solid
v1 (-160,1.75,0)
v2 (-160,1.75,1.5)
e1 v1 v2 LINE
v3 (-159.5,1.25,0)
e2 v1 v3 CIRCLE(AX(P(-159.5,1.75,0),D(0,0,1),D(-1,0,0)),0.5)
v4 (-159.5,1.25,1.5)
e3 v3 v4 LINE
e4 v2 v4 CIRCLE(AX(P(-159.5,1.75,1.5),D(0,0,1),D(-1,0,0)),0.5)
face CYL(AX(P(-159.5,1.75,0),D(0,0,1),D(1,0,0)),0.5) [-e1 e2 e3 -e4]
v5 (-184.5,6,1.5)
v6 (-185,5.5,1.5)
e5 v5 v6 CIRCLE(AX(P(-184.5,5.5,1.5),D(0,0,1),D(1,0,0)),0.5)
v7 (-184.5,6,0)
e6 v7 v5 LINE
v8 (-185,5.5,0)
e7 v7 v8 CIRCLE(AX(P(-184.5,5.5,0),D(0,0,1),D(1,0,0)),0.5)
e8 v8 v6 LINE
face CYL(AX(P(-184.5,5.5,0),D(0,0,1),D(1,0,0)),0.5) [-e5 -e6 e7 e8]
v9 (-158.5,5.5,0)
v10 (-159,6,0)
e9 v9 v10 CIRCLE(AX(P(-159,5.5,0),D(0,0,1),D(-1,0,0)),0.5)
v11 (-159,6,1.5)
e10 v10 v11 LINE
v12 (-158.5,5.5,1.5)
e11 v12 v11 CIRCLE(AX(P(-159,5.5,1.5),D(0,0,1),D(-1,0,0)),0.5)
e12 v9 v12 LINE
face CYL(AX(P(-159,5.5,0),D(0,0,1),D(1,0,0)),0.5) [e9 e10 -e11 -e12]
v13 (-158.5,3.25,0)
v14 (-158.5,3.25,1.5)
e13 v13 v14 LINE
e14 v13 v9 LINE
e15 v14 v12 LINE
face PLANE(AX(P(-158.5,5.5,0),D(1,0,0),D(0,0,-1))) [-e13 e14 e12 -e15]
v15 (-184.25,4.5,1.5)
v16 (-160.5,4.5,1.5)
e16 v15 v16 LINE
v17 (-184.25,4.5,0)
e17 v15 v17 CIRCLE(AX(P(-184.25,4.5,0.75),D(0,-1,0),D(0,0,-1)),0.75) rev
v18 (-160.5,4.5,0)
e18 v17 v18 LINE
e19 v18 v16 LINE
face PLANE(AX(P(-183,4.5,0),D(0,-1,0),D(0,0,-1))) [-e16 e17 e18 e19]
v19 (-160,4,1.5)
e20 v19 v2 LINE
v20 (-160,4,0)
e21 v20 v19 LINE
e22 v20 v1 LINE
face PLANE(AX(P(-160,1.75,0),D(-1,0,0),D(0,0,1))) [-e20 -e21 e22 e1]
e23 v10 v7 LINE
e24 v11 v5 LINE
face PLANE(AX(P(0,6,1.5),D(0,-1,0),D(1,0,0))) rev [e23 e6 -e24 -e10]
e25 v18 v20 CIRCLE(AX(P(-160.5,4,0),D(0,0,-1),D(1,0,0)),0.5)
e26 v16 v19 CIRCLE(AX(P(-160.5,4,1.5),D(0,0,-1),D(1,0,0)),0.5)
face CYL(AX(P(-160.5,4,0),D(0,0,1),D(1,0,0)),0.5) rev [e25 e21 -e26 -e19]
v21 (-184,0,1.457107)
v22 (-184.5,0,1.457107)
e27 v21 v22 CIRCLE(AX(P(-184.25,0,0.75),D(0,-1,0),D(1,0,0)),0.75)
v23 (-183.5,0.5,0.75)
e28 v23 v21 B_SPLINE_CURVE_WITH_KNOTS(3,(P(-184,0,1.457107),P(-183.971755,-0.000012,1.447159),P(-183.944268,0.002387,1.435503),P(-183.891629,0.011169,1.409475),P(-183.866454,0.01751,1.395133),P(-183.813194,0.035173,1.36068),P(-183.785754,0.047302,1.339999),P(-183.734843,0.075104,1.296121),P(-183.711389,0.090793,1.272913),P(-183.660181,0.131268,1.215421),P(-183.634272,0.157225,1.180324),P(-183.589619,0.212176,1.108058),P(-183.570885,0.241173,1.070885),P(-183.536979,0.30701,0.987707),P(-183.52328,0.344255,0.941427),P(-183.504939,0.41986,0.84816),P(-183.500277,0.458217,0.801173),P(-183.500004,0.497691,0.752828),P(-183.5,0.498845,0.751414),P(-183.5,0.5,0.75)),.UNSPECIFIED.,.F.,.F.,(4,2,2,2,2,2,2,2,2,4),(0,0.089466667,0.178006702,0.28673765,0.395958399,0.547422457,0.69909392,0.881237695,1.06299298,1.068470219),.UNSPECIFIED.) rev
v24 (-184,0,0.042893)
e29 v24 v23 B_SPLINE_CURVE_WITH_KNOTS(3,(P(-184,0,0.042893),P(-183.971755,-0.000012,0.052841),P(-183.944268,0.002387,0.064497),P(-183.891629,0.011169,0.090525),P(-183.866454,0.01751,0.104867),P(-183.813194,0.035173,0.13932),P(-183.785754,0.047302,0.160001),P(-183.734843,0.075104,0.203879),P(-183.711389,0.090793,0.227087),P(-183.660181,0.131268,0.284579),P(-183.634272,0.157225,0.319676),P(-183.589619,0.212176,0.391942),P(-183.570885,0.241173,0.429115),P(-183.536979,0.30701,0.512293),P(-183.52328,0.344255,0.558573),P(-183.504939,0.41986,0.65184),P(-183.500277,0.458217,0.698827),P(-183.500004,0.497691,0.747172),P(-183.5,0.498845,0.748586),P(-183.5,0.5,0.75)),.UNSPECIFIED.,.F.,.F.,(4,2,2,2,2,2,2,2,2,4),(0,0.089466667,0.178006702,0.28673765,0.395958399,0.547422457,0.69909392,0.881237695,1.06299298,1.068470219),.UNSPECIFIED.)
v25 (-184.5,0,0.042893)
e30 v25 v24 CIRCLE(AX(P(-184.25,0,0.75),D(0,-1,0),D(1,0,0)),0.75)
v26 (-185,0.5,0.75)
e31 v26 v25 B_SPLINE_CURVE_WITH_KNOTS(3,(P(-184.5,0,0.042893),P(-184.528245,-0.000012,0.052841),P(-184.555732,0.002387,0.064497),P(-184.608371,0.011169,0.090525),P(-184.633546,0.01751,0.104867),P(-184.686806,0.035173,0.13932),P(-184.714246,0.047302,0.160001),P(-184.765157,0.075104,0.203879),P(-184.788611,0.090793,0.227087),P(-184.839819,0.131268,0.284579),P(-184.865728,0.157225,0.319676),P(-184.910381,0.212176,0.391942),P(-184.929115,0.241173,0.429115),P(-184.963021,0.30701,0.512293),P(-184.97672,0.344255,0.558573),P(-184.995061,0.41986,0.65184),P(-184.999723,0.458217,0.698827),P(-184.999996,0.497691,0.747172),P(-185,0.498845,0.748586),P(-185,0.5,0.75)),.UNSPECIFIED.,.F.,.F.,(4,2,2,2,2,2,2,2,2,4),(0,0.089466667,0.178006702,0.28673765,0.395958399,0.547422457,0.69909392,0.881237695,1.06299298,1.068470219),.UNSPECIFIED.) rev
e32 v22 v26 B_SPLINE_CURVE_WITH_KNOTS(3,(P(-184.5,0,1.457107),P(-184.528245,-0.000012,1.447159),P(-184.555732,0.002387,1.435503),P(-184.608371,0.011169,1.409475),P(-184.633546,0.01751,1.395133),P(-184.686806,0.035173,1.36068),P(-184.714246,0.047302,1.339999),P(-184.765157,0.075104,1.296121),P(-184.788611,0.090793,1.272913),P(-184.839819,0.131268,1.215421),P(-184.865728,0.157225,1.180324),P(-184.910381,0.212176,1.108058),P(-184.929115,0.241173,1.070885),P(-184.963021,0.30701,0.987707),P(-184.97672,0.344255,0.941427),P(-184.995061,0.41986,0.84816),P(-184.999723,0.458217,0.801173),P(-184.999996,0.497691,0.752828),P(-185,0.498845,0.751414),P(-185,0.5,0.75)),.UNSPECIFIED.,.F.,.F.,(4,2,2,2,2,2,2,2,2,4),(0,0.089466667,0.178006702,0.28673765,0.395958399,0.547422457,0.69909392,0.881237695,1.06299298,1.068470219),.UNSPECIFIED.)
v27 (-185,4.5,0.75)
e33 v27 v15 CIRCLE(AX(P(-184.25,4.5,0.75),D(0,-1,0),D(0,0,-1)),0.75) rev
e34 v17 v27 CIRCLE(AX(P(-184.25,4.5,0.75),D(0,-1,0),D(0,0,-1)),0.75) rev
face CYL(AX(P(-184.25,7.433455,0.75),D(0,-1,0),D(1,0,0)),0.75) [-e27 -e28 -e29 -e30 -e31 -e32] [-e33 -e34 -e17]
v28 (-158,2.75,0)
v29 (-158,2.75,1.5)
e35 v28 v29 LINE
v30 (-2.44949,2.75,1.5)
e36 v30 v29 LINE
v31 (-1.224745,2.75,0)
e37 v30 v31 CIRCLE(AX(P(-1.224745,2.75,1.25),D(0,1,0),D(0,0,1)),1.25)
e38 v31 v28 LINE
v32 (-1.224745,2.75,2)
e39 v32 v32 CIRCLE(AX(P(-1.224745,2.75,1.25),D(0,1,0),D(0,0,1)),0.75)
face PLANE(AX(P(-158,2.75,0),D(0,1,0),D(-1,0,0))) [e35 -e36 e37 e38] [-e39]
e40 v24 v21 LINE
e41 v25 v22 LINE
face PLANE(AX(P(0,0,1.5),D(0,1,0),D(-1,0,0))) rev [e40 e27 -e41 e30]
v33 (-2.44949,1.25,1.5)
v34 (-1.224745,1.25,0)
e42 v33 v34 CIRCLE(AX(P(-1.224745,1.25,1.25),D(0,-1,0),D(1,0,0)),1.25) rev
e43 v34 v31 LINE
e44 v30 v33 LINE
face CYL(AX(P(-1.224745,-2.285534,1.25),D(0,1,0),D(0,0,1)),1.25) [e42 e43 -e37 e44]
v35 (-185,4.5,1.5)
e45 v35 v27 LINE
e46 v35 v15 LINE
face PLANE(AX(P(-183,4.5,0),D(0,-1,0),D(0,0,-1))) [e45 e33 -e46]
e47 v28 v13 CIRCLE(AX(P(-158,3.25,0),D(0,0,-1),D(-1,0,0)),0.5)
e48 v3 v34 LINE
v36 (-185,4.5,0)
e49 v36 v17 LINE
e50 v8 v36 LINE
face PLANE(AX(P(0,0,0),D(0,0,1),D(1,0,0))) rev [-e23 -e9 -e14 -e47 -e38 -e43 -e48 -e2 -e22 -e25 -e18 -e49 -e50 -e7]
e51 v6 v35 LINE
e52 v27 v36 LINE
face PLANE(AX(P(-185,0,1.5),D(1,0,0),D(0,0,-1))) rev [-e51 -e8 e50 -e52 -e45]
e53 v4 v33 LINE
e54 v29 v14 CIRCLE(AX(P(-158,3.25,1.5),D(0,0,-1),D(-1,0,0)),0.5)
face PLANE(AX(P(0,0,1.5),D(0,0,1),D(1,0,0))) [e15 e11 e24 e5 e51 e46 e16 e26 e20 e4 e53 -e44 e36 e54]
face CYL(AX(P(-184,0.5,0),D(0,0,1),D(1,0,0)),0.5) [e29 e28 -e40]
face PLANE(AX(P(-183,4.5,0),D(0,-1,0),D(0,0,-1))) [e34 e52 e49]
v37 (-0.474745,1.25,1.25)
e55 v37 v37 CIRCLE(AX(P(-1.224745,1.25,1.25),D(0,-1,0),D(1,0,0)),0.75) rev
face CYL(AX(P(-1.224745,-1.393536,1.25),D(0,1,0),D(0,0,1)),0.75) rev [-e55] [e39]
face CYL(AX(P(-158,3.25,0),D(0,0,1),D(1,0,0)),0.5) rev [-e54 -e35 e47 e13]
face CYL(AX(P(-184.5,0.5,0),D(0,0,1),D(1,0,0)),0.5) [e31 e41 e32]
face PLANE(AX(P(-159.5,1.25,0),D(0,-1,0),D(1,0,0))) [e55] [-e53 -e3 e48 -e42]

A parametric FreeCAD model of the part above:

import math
import FreeCAD as App
import Part
import Sketcher

V = App.Vector

doc = App.newDocument("Part")
params = doc.addObject("Spreadsheet::Sheet", "Params")
for row, (alias, value) in enumerate([
    ("sketch1_width", "185 mm"),
    ("sketch1_height", "6 mm"),
    ("pad1_length", "1.5 mm"),
    ("sketch2_radius", "0.5 mm"),
    ("sketch2_width", "158 mm"),
    ("sketch2_height", "5 mm"),
    ("sketch2_width2", "0.5 mm"),
    ("sketch2_width3", "25.5 mm"),
    ("pocket1_length", "1.5 mm"),
    ("sketch3_diameter", "1.5 mm"),
    ("pocket2_length", "4.5 mm"),
    ("sketch4_diameter", "2.5 mm"),
    ("pad2_length", "1.5 mm"),
    ("sketch5_diameter", "1.5 mm"),
    ("sketch5_radius", "1.25 mm"),
    ("pocket3_length", "1.5 mm"),
], start=1):
    params.set(f"A{row}", alias)
    params.set(f"B{row}", "=" + value)
    params.setAlias(f"B{row}", alias)

body = doc.addObject("PartDesign::Body", "Body")

sketch1 = body.newObject("Sketcher::SketchObject", "Sketch")
sketch1.AttachmentSupport = (doc.getObject("XY_Plane"), [""])
sketch1.MapMode = "FlatFace"
sketch1.addGeometry(Part.LineSegment(V(-185, 6, 0), V(-185, 0, 0)), False)
sketch1.addGeometry(Part.LineSegment(V(-185, 0, 0), V(0, 0, 0)), False)
sketch1.addGeometry(Part.LineSegment(V(0, 0, 0), V(0, 6, 0)), False)
sketch1.addGeometry(Part.LineSegment(V(0, 6, 0), V(-185, 6, 0)), False)
sketch1.addConstraint(Sketcher.Constraint("Coincident", 0, 2, 1, 1))
sketch1.addConstraint(Sketcher.Constraint("Coincident", 1, 2, 2, 1))
sketch1.addConstraint(Sketcher.Constraint("Coincident", 2, 2, 3, 1))
sketch1.addConstraint(Sketcher.Constraint("Coincident", 3, 2, 0, 1))
sketch1.addConstraint(Sketcher.Constraint("Vertical", 0))
sketch1.addConstraint(Sketcher.Constraint("Horizontal", 1))
sketch1.addConstraint(Sketcher.Constraint("Vertical", 2))
sketch1.addConstraint(Sketcher.Constraint("Horizontal", 3))
sketch1.addConstraint(Sketcher.Constraint("Coincident", 1, 2, -1, 1))
sketch1.addConstraint(Sketcher.Constraint("DistanceX", 1, 1, 1, 2, 185.0))
sketch1.addConstraint(Sketcher.Constraint("DistanceY", 0, 2, 0, 1, 6.0))
sketch1.setExpression("Constraints[9]", "Params.sketch1_width")
sketch1.setExpression("Constraints[10]", "Params.sketch1_height")
pad1 = body.newObject("PartDesign::Pad", "Pad")
pad1.Profile = sketch1
pad1.setExpression("Length", "Params.pad1_length")

sketch2 = body.newObject("Sketcher::SketchObject", "Sketch001")
sketch2.AttachmentSupport = (doc.getObject("XY_Plane"), [""])
sketch2.MapMode = "FlatFace"
sketch2.AttachmentOffset = App.Placement(V(0, 0, 1.5), App.Rotation())
sketch2.addGeometry(Part.LineSegment(V(-204.51, 25.51, 0), V(-204.51, -19.51, 0)), False)
sketch2.addGeometry(Part.LineSegment(V(-204.51, -19.51, 0), V(19.51, -19.51, 0)), False)
sketch2.addGeometry(Part.LineSegment(V(19.51, -19.51, 0), V(19.51, 25.51, 0)), False)
sketch2.addGeometry(Part.LineSegment(V(19.51, 25.51, 0), V(-204.51, 25.51, 0)), False)
sketch2.addGeometry(Part.LineSegment(V(-184, 0, 0), V(-184.5, 0, 0)), False)
sketch2.addGeometry(Part.ArcOfCircle(Part.Circle(V(-184.5, 0.5, 0), V(0, 0, 1), 0.5), math.radians(180), math.radians(270)), False)
sketch2.addGeometry(Part.LineSegment(V(-185, 0.5, 0), V(-185, 5.5, 0)), False)
sketch2.addGeometry(Part.ArcOfCircle(Part.Circle(V(-184.5, 5.5, 0), V(0, 0, 1), 0.5), math.radians(90), math.radians(180)), False)
sketch2.addGeometry(Part.LineSegment(V(-184.5, 6, 0), V(-159, 6, 0)), False)
sketch2.addGeometry(Part.ArcOfCircle(Part.Circle(V(-159, 5.5, 0), V(0, 0, 1), 0.5), math.radians(0), math.radians(90)), False)
sketch2.addGeometry(Part.LineSegment(V(-158.5, 5.5, 0), V(-158.5, 3.25, 0)), False)
sketch2.addGeometry(Part.ArcOfCircle(Part.Circle(V(-158, 3.25, 0), V(0, 0, 1), 0.5), math.radians(180), math.radians(270)), False)
sketch2.addGeometry(Part.LineSegment(V(-158, 2.75, 0), V(0, 2.75, 0)), False)
sketch2.addGeometry(Part.LineSegment(V(0, 2.75, 0), V(0, 1.25, 0)), False)
sketch2.addGeometry(Part.LineSegment(V(0, 1.25, 0), V(-159.5, 1.25, 0)), False)
sketch2.addGeometry(Part.ArcOfCircle(Part.Circle(V(-159.5, 1.75, 0), V(0, 0, 1), 0.5), math.radians(180), math.radians(270)), False)
sketch2.addGeometry(Part.LineSegment(V(-160, 1.75, 0), V(-160, 4, 0)), False)
sketch2.addGeometry(Part.ArcOfCircle(Part.Circle(V(-160.5, 4, 0), V(0, 0, 1), 0.5), math.radians(0), math.radians(90)), False)
sketch2.addGeometry(Part.LineSegment(V(-160.5, 4.5, 0), V(-183, 4.5, 0)), False)
sketch2.addGeometry(Part.ArcOfCircle(Part.Circle(V(-183, 4, 0), V(0, 0, 1), 0.5), math.radians(90), math.radians(180)), False)
sketch2.addGeometry(Part.LineSegment(V(-183.5, 4, 0), V(-183.5, 0.5, 0)), False)
sketch2.addGeometry(Part.ArcOfCircle(Part.Circle(V(-184, 0.5, 0), V(0, 0, 1), 0.5), math.radians(-90), math.radians(0)), False)
sketch2.addConstraint(Sketcher.Constraint("Coincident", 0, 2, 1, 1))
sketch2.addConstraint(Sketcher.Constraint("Coincident", 1, 2, 2, 1))
sketch2.addConstraint(Sketcher.Constraint("Coincident", 2, 2, 3, 1))
sketch2.addConstraint(Sketcher.Constraint("Coincident", 3, 2, 0, 1))
sketch2.addConstraint(Sketcher.Constraint("Tangent", 4, 2, 5, 2))
sketch2.addConstraint(Sketcher.Constraint("Tangent", 5, 1, 6, 1))
sketch2.addConstraint(Sketcher.Constraint("Tangent", 6, 2, 7, 2))
sketch2.addConstraint(Sketcher.Constraint("Tangent", 7, 1, 8, 1))
sketch2.addConstraint(Sketcher.Constraint("Tangent", 8, 2, 9, 2))
sketch2.addConstraint(Sketcher.Constraint("Tangent", 9, 1, 10, 1))
sketch2.addConstraint(Sketcher.Constraint("Tangent", 10, 2, 11, 1))
sketch2.addConstraint(Sketcher.Constraint("Tangent", 11, 2, 12, 1))
sketch2.addConstraint(Sketcher.Constraint("Coincident", 12, 2, 13, 1))
sketch2.addConstraint(Sketcher.Constraint("Coincident", 13, 2, 14, 1))
sketch2.addConstraint(Sketcher.Constraint("Tangent", 14, 2, 15, 2))
sketch2.addConstraint(Sketcher.Constraint("Tangent", 15, 1, 16, 1))
sketch2.addConstraint(Sketcher.Constraint("Tangent", 16, 2, 17, 1))
sketch2.addConstraint(Sketcher.Constraint("Tangent", 17, 2, 18, 1))
sketch2.addConstraint(Sketcher.Constraint("Tangent", 18, 2, 19, 1))
sketch2.addConstraint(Sketcher.Constraint("Tangent", 19, 2, 20, 1))
sketch2.addConstraint(Sketcher.Constraint("Tangent", 20, 2, 21, 2))
sketch2.addConstraint(Sketcher.Constraint("Tangent", 21, 1, 4, 1))
sketch2.addConstraint(Sketcher.Constraint("Vertical", 0))
sketch2.addConstraint(Sketcher.Constraint("Horizontal", 1))
sketch2.addConstraint(Sketcher.Constraint("Vertical", 2))
sketch2.addConstraint(Sketcher.Constraint("Horizontal", 3))
sketch2.addConstraint(Sketcher.Constraint("Horizontal", 4))
sketch2.addConstraint(Sketcher.Constraint("Vertical", 6))
sketch2.addConstraint(Sketcher.Constraint("Horizontal", 8))
sketch2.addConstraint(Sketcher.Constraint("Vertical", 10))
sketch2.addConstraint(Sketcher.Constraint("Horizontal", 12))
sketch2.addConstraint(Sketcher.Constraint("Vertical", 13))
sketch2.addConstraint(Sketcher.Constraint("Horizontal", 14))
sketch2.addConstraint(Sketcher.Constraint("Vertical", 16))
sketch2.addConstraint(Sketcher.Constraint("Horizontal", 18))
sketch2.addConstraint(Sketcher.Constraint("Vertical", 20))
sketch2.addConstraint(Sketcher.Constraint("Equal", 5, 7))
sketch2.addConstraint(Sketcher.Constraint("Equal", 7, 9))
sketch2.addConstraint(Sketcher.Constraint("Equal", 9, 11))
sketch2.addConstraint(Sketcher.Constraint("Equal", 11, 15))
sketch2.addConstraint(Sketcher.Constraint("Equal", 15, 17))
sketch2.addConstraint(Sketcher.Constraint("Equal", 17, 19))
sketch2.addConstraint(Sketcher.Constraint("Equal", 19, 21))
sketch2.addConstraint(Sketcher.Constraint("PointOnObject", 4, 2, -1))
sketch2.addConstraint(Sketcher.Constraint("PointOnObject", 12, 2, -2))
sketch2.addConstraint(Sketcher.Constraint("Equal", 10, 16))
sketch2.addConstraint(Sketcher.Constraint("Radius", 5, 0.5))
sketch2.addConstraint(Sketcher.Constraint("DistanceX", 12, 1, 12, 2, 158.0))
sketch2.addConstraint(Sketcher.Constraint("DistanceY", 6, 1, 6, 2, 5.0))
sketch2.addConstraint(Sketcher.Constraint("DistanceX", 4, 2, 4, 1, 0.5))
sketch2.addConstraint(Sketcher.Constraint("DistanceX", 8, 1, 8, 2, 25.5))
sketch2.addConstraint(Sketcher.Constraint("DistanceX", 14, 2, 14, 1, 159.5))
sketch2.addConstraint(Sketcher.Constraint("DistanceY", 13, 2, 13, 1, 1.5))
sketch2.addConstraint(Sketcher.Constraint("DistanceX", 1, 1, 1, 2, 224.02))
sketch2.addConstraint(Sketcher.Constraint("DistanceY", 0, 2, 0, 1, 45.02))
sketch2.addConstraint(Sketcher.Constraint("DistanceY", 10, 2, 10, 1, 2.25))
sketch2.addConstraint(Sketcher.Constraint("DistanceX", 0, 2, -1, 1, 204.51))
sketch2.addConstraint(Sketcher.Constraint("DistanceY", 0, 2, -1, 1, 19.51))
sketch2.setExpression("Constraints[46]", "Params.sketch2_radius")
sketch2.setExpression("Constraints[47]", "Params.sketch2_width")
sketch2.setExpression("Constraints[48]", "Params.sketch2_height")
sketch2.setExpression("Constraints[49]", "Params.sketch2_width2")
sketch2.setExpression("Constraints[50]", "Params.sketch2_width3")
pocket1 = body.newObject("PartDesign::Pocket", "Pocket")
pocket1.Profile = sketch2
pocket1.setExpression("Length", "Params.pocket1_length")

sketch3 = body.newObject("Sketcher::SketchObject", "Sketch002")
sketch3.AttachmentSupport = (doc.getObject("XZ_Plane"), [""])
sketch3.MapMode = "FlatFace"
sketch3.addGeometry(Part.LineSegment(V(-185.166835, 1.608054, 0), V(-185.166835, -0.219674, 0)), False)
sketch3.addGeometry(Part.LineSegment(V(-185.166835, -0.219674, 0), V(-182.87237, -0.219674, 0)), False)
sketch3.addGeometry(Part.LineSegment(V(-182.87237, -0.219674, 0), V(-182.87237, 1.608054, 0)), False)
sketch3.addGeometry(Part.LineSegment(V(-182.87237, 1.608054, 0), V(-185.166835, 1.608054, 0)), False)
sketch3.addGeometry(Part.Circle(V(-184.25, 0.75, 0), V(0, 0, 1), 0.75), False)
sketch3.addConstraint(Sketcher.Constraint("Coincident", 0, 2, 1, 1))
sketch3.addConstraint(Sketcher.Constraint("Coincident", 1, 2, 2, 1))
sketch3.addConstraint(Sketcher.Constraint("Coincident", 2, 2, 3, 1))
sketch3.addConstraint(Sketcher.Constraint("Coincident", 3, 2, 0, 1))
sketch3.addConstraint(Sketcher.Constraint("Vertical", 0))
sketch3.addConstraint(Sketcher.Constraint("Horizontal", 1))
sketch3.addConstraint(Sketcher.Constraint("Vertical", 2))
sketch3.addConstraint(Sketcher.Constraint("Horizontal", 3))
sketch3.addConstraint(Sketcher.Constraint("Diameter", 4, 1.5))
sketch3.addConstraint(Sketcher.Constraint("DistanceX", 4, 3, -1, 1, 184.25))
sketch3.addConstraint(Sketcher.Constraint("DistanceY", -1, 1, 4, 3, 0.75))
sketch3.addConstraint(Sketcher.Constraint("DistanceX", 1, 1, 1, 2, 2.294465))
sketch3.addConstraint(Sketcher.Constraint("DistanceY", 0, 2, 0, 1, 1.827728))
sketch3.addConstraint(Sketcher.Constraint("DistanceX", 1, 2, -1, 1, 182.87237))
sketch3.addConstraint(Sketcher.Constraint("DistanceY", 0, 2, -1, 1, 0.219674))
sketch3.setExpression("Constraints[8]", "Params.sketch3_diameter")
pocket2 = body.newObject("PartDesign::Pocket", "Pocket001")
pocket2.Profile = sketch3
pocket2.setExpression("Length", "Params.pocket2_length")

sketch4 = body.newObject("Sketcher::SketchObject", "Sketch003")
sketch4.AttachmentSupport = (doc.getObject("XZ_Plane"), [""])
sketch4.MapMode = "FlatFace"
sketch4.AttachmentOffset = App.Placement(V(0, 0, -2.75), App.Rotation())
sketch4.addGeometry(Part.Circle(V(-1.224745, 1.25, 0), V(0, 0, 1), 1.25), False)
sketch4.addConstraint(Sketcher.Constraint("Diameter", 0, 2.5))
sketch4.addConstraint(Sketcher.Constraint("DistanceY", -1, 1, 0, 3, 1.25))
sketch4.addConstraint(Sketcher.Constraint("DistanceX", 0, 3, -1, 1, 1.224745))
sketch4.setExpression("Constraints[0]", "Params.sketch4_diameter")
pad2 = body.newObject("PartDesign::Pad", "Pad001")
pad2.Profile = sketch4
pad2.setExpression("Length", "Params.pad2_length")

sketch5 = body.newObject("Sketcher::SketchObject", "Sketch004")
sketch5.AttachmentSupport = (doc.getObject("XZ_Plane"), [""])
sketch5.MapMode = "FlatFace"
sketch5.AttachmentOffset = App.Placement(V(0, 0, -2.75), App.Rotation())
sketch5.addGeometry(Part.Circle(V(-1.224745, 1.25, 0), V(0, 0, 1), 0.75), False)
sketch5.addGeometry(Part.LineSegment(V(-1.224745, -0.534346, 0), V(-1.224745, 0, 0)), False)
sketch5.addGeometry(Part.ArcOfCircle(Part.Circle(V(-1.224745, 1.25, 0), V(0, 0, 1), 1.25), math.radians(-90), math.radians(0)), False)
sketch5.addGeometry(Part.LineSegment(V(0.025255, 1.25, 0), V(0.72574, 1.25, 0)), False)
sketch5.addGeometry(Part.LineSegment(V(0.72574, 1.25, 0), V(0.72574, -0.534346, 0)), False)
sketch5.addGeometry(Part.LineSegment(V(0.72574, -0.534346, 0), V(-1.224745, -0.534346, 0)), False)
sketch5.addConstraint(Sketcher.Constraint("Coincident", 1, 2, 2, 1))
sketch5.addConstraint(Sketcher.Constraint("Coincident", 2, 2, 3, 1))
sketch5.addConstraint(Sketcher.Constraint("Coincident", 3, 2, 4, 1))
sketch5.addConstraint(Sketcher.Constraint("Coincident", 4, 2, 5, 1))
sketch5.addConstraint(Sketcher.Constraint("Coincident", 5, 2, 1, 1))
sketch5.addConstraint(Sketcher.Constraint("Vertical", 1))
sketch5.addConstraint(Sketcher.Constraint("Horizontal", 3))
sketch5.addConstraint(Sketcher.Constraint("Vertical", 4))
sketch5.addConstraint(Sketcher.Constraint("Horizontal", 5))
sketch5.addConstraint(Sketcher.Constraint("Coincident", 2, 3, 0, 3))
sketch5.addConstraint(Sketcher.Constraint("PointOnObject", 1, 2, -1))
sketch5.addConstraint(Sketcher.Constraint("Horizontal", 0, 3, 2, 2))
sketch5.addConstraint(Sketcher.Constraint("Vertical", 2, 3, 1, 2))
sketch5.addConstraint(Sketcher.Constraint("Diameter", 0, 1.5))
sketch5.addConstraint(Sketcher.Constraint("Radius", 2, 1.25))
sketch5.addConstraint(Sketcher.Constraint("DistanceX", 3, 1, 3, 2, 0.700484))
sketch5.addConstraint(Sketcher.Constraint("DistanceY", 1, 1, 1, 2, 0.534346))
sketch5.addConstraint(Sketcher.Constraint("DistanceX", -1, 1, 3, 2, 0.72574))
sketch5.setExpression("Constraints[13]", "Params.sketch5_diameter")
sketch5.setExpression("Constraints[14]", "Params.sketch5_radius")
pocket3 = body.newObject("PartDesign::Pocket", "Pocket002")
pocket3.Profile = sketch5
pocket3.setExpression("Length", "Params.pocket3_length")
pocket3.Reversed = True

doc.recompute()
